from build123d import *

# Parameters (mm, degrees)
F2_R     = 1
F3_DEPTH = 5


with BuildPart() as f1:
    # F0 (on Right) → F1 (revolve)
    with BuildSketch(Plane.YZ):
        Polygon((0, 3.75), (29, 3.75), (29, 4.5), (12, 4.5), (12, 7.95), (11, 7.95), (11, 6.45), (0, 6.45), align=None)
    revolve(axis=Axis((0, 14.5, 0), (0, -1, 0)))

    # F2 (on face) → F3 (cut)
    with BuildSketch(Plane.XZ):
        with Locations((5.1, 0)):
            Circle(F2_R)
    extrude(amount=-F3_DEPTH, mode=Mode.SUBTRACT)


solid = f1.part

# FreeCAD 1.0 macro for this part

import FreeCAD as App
import Part
import Sketcher

V = App.Vector


def add_polygon(sketch, points):
    """Adds a closed chain of lines whose ends are joined by coincident constraints."""
    first, n = sketch.GeometryCount, len(points)
    for a, b in zip(points, points[1:] + points[:1]):
        sketch.addGeometry(Part.LineSegment(App.Vector(*a, 0), App.Vector(*b, 0)), False)
    for i in range(n):
        sketch.addConstraint(Sketcher.Constraint("Coincident", first + i, 2, first + (i + 1) % n, 1))

doc = App.newDocument("Part")
body = doc.addObject("PartDesign::Body", "Body")

sketch1 = body.newObject("Sketcher::SketchObject", "Sketch")
sketch1.AttachmentSupport = (doc.getObject("YZ_Plane"), [""])
sketch1.MapMode = "FlatFace"
add_polygon(sketch1, [(0, 3.8), (29, 3.8), (29, 4.5), (12, 4.5), (12, 8), (11, 8), (11, 6.5), (0, 6.5)])
sketch1.addConstraint([
    Sketcher.Constraint("Horizontal", 0),
    Sketcher.Constraint("Vertical", 1),
    Sketcher.Constraint("Horizontal", 2),
    Sketcher.Constraint("Vertical", 3),
    Sketcher.Constraint("Horizontal", 4),
    Sketcher.Constraint("Vertical", 5),
    Sketcher.Constraint("Horizontal", 6),
    Sketcher.Constraint("Vertical", 7),
    Sketcher.Constraint("PointOnObject", 6, 2, -2),
    Sketcher.Constraint("DistanceX", 0, 1, 0, 2, 29.0),
    Sketcher.Constraint("DistanceX", 2, 2, 2, 1, 17.0),
    Sketcher.Constraint("DistanceX", 4, 2, 4, 1, 1.0),
    Sketcher.Constraint("DistanceY", 5, 2, 5, 1, 1.5),
    Sketcher.Constraint("DistanceY", 7, 2, 7, 1, 2.7),
    Sketcher.Constraint("DistanceY", 1, 1, 1, 2, 0.75),
    Sketcher.Constraint("DistanceY", -1, 1, 1, 2, 4.5),
])
revolution = body.newObject("PartDesign::Revolution", "Revolution")
revolution.Profile = sketch1
revolution.ReferenceAxis = (sketch1, ["H_Axis"])
revolution.Angle = 360

sketch2 = body.newObject("Sketcher::SketchObject", "Sketch001")
sketch2.AttachmentSupport = (doc.getObject("XZ_Plane"), [""])
sketch2.MapMode = "FlatFace"
sketch2.addGeometry(Part.Circle(V(5.1, 0, 0), V(0, 0, 1), 1), False)
sketch2.addConstraint([
    Sketcher.Constraint("PointOnObject", 0, 3, -1),
    Sketcher.Constraint("Diameter", 0, 2.0),
    Sketcher.Constraint("DistanceX", -1, 1, 0, 3, 5.1),
])
pocket1 = body.newObject("PartDesign::Pocket", "Pocket")
pocket1.Profile = sketch2
pocket1.Length = 5

doc.recompute()
